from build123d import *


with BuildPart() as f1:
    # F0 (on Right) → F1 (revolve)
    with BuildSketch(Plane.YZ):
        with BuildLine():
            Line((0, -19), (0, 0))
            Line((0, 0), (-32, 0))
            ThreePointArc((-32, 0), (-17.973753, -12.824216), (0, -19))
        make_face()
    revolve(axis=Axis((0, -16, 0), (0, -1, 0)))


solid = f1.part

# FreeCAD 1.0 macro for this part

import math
import FreeCAD as App
import Part
import Sketcher

V = App.Vector

doc = App.newDocument("Part")
params = doc.addObject("Spreadsheet::Sheet", "Params")
for row, (alias, value) in enumerate([
    ("sketch1_width", "32 mm"),
    ("sketch1_height", "19 mm"),
    ("revolution_angle", "360 deg"),
], start=1):
    params.set(f"A{row}", alias)
    params.set(f"B{row}", "=" + value)
    params.setAlias(f"B{row}", alias)

body = doc.addObject("PartDesign::Body", "Body")

# Sketch on YZ plane
sketch1 = doc.addObject("Sketcher::SketchObject", "Sketch")
body.addObject(sketch1)
sketch1.AttachmentSupport = (doc.YZ_Plane, [""])
sketch1.MapMode = "FlatFace"
sketch1.addGeometry(Part.LineSegment(V(0, -19, 0), V(0, 0, 0)), False)
sketch1.addGeometry(Part.LineSegment(V(0, 0, 0), V(-32, 0, 0)), False)
sketch1.addGeometry(Part.ArcOfCircle(Part.Circle(V(6, 27, 0), V(0, 0, 1), 47), math.radians(-144), math.radians(-97)), False)
sketch1.addConstraint(Sketcher.Constraint("Coincident", 0, 2, 1, 1))
sketch1.addConstraint(Sketcher.Constraint("Coincident", 1, 2, 2, 1))
sketch1.addConstraint(Sketcher.Constraint("Coincident", 2, 2, 0, 1))
sketch1.addConstraint(Sketcher.Constraint("Vertical", 0))
sketch1.addConstraint(Sketcher.Constraint("Horizontal", 1))
sketch1.addConstraint(Sketcher.Constraint("Coincident", 0, 2, -1, 1))
sketch1.addConstraint(Sketcher.Constraint("DistanceX", 1, 2, 1, 1, 32.0))
sketch1.addConstraint(Sketcher.Constraint("DistanceY", 0, 1, 0, 2, 19.0))
sketch1.addConstraint(Sketcher.Constraint("Radius", 2, 46.714203))
sketch1.setExpression("Constraints[6]", "Params.sketch1_width")
sketch1.setExpression("Constraints[7]", "Params.sketch1_height")
revolution = doc.addObject("PartDesign::Revolution", "Revolution")
body.addObject(revolution)
revolution.Profile = sketch1
revolution.ReferenceAxis = (sketch1, ["H_Axis"])
revolution.setExpression("Angle", "Params.revolution_angle")

doc.recompute()
